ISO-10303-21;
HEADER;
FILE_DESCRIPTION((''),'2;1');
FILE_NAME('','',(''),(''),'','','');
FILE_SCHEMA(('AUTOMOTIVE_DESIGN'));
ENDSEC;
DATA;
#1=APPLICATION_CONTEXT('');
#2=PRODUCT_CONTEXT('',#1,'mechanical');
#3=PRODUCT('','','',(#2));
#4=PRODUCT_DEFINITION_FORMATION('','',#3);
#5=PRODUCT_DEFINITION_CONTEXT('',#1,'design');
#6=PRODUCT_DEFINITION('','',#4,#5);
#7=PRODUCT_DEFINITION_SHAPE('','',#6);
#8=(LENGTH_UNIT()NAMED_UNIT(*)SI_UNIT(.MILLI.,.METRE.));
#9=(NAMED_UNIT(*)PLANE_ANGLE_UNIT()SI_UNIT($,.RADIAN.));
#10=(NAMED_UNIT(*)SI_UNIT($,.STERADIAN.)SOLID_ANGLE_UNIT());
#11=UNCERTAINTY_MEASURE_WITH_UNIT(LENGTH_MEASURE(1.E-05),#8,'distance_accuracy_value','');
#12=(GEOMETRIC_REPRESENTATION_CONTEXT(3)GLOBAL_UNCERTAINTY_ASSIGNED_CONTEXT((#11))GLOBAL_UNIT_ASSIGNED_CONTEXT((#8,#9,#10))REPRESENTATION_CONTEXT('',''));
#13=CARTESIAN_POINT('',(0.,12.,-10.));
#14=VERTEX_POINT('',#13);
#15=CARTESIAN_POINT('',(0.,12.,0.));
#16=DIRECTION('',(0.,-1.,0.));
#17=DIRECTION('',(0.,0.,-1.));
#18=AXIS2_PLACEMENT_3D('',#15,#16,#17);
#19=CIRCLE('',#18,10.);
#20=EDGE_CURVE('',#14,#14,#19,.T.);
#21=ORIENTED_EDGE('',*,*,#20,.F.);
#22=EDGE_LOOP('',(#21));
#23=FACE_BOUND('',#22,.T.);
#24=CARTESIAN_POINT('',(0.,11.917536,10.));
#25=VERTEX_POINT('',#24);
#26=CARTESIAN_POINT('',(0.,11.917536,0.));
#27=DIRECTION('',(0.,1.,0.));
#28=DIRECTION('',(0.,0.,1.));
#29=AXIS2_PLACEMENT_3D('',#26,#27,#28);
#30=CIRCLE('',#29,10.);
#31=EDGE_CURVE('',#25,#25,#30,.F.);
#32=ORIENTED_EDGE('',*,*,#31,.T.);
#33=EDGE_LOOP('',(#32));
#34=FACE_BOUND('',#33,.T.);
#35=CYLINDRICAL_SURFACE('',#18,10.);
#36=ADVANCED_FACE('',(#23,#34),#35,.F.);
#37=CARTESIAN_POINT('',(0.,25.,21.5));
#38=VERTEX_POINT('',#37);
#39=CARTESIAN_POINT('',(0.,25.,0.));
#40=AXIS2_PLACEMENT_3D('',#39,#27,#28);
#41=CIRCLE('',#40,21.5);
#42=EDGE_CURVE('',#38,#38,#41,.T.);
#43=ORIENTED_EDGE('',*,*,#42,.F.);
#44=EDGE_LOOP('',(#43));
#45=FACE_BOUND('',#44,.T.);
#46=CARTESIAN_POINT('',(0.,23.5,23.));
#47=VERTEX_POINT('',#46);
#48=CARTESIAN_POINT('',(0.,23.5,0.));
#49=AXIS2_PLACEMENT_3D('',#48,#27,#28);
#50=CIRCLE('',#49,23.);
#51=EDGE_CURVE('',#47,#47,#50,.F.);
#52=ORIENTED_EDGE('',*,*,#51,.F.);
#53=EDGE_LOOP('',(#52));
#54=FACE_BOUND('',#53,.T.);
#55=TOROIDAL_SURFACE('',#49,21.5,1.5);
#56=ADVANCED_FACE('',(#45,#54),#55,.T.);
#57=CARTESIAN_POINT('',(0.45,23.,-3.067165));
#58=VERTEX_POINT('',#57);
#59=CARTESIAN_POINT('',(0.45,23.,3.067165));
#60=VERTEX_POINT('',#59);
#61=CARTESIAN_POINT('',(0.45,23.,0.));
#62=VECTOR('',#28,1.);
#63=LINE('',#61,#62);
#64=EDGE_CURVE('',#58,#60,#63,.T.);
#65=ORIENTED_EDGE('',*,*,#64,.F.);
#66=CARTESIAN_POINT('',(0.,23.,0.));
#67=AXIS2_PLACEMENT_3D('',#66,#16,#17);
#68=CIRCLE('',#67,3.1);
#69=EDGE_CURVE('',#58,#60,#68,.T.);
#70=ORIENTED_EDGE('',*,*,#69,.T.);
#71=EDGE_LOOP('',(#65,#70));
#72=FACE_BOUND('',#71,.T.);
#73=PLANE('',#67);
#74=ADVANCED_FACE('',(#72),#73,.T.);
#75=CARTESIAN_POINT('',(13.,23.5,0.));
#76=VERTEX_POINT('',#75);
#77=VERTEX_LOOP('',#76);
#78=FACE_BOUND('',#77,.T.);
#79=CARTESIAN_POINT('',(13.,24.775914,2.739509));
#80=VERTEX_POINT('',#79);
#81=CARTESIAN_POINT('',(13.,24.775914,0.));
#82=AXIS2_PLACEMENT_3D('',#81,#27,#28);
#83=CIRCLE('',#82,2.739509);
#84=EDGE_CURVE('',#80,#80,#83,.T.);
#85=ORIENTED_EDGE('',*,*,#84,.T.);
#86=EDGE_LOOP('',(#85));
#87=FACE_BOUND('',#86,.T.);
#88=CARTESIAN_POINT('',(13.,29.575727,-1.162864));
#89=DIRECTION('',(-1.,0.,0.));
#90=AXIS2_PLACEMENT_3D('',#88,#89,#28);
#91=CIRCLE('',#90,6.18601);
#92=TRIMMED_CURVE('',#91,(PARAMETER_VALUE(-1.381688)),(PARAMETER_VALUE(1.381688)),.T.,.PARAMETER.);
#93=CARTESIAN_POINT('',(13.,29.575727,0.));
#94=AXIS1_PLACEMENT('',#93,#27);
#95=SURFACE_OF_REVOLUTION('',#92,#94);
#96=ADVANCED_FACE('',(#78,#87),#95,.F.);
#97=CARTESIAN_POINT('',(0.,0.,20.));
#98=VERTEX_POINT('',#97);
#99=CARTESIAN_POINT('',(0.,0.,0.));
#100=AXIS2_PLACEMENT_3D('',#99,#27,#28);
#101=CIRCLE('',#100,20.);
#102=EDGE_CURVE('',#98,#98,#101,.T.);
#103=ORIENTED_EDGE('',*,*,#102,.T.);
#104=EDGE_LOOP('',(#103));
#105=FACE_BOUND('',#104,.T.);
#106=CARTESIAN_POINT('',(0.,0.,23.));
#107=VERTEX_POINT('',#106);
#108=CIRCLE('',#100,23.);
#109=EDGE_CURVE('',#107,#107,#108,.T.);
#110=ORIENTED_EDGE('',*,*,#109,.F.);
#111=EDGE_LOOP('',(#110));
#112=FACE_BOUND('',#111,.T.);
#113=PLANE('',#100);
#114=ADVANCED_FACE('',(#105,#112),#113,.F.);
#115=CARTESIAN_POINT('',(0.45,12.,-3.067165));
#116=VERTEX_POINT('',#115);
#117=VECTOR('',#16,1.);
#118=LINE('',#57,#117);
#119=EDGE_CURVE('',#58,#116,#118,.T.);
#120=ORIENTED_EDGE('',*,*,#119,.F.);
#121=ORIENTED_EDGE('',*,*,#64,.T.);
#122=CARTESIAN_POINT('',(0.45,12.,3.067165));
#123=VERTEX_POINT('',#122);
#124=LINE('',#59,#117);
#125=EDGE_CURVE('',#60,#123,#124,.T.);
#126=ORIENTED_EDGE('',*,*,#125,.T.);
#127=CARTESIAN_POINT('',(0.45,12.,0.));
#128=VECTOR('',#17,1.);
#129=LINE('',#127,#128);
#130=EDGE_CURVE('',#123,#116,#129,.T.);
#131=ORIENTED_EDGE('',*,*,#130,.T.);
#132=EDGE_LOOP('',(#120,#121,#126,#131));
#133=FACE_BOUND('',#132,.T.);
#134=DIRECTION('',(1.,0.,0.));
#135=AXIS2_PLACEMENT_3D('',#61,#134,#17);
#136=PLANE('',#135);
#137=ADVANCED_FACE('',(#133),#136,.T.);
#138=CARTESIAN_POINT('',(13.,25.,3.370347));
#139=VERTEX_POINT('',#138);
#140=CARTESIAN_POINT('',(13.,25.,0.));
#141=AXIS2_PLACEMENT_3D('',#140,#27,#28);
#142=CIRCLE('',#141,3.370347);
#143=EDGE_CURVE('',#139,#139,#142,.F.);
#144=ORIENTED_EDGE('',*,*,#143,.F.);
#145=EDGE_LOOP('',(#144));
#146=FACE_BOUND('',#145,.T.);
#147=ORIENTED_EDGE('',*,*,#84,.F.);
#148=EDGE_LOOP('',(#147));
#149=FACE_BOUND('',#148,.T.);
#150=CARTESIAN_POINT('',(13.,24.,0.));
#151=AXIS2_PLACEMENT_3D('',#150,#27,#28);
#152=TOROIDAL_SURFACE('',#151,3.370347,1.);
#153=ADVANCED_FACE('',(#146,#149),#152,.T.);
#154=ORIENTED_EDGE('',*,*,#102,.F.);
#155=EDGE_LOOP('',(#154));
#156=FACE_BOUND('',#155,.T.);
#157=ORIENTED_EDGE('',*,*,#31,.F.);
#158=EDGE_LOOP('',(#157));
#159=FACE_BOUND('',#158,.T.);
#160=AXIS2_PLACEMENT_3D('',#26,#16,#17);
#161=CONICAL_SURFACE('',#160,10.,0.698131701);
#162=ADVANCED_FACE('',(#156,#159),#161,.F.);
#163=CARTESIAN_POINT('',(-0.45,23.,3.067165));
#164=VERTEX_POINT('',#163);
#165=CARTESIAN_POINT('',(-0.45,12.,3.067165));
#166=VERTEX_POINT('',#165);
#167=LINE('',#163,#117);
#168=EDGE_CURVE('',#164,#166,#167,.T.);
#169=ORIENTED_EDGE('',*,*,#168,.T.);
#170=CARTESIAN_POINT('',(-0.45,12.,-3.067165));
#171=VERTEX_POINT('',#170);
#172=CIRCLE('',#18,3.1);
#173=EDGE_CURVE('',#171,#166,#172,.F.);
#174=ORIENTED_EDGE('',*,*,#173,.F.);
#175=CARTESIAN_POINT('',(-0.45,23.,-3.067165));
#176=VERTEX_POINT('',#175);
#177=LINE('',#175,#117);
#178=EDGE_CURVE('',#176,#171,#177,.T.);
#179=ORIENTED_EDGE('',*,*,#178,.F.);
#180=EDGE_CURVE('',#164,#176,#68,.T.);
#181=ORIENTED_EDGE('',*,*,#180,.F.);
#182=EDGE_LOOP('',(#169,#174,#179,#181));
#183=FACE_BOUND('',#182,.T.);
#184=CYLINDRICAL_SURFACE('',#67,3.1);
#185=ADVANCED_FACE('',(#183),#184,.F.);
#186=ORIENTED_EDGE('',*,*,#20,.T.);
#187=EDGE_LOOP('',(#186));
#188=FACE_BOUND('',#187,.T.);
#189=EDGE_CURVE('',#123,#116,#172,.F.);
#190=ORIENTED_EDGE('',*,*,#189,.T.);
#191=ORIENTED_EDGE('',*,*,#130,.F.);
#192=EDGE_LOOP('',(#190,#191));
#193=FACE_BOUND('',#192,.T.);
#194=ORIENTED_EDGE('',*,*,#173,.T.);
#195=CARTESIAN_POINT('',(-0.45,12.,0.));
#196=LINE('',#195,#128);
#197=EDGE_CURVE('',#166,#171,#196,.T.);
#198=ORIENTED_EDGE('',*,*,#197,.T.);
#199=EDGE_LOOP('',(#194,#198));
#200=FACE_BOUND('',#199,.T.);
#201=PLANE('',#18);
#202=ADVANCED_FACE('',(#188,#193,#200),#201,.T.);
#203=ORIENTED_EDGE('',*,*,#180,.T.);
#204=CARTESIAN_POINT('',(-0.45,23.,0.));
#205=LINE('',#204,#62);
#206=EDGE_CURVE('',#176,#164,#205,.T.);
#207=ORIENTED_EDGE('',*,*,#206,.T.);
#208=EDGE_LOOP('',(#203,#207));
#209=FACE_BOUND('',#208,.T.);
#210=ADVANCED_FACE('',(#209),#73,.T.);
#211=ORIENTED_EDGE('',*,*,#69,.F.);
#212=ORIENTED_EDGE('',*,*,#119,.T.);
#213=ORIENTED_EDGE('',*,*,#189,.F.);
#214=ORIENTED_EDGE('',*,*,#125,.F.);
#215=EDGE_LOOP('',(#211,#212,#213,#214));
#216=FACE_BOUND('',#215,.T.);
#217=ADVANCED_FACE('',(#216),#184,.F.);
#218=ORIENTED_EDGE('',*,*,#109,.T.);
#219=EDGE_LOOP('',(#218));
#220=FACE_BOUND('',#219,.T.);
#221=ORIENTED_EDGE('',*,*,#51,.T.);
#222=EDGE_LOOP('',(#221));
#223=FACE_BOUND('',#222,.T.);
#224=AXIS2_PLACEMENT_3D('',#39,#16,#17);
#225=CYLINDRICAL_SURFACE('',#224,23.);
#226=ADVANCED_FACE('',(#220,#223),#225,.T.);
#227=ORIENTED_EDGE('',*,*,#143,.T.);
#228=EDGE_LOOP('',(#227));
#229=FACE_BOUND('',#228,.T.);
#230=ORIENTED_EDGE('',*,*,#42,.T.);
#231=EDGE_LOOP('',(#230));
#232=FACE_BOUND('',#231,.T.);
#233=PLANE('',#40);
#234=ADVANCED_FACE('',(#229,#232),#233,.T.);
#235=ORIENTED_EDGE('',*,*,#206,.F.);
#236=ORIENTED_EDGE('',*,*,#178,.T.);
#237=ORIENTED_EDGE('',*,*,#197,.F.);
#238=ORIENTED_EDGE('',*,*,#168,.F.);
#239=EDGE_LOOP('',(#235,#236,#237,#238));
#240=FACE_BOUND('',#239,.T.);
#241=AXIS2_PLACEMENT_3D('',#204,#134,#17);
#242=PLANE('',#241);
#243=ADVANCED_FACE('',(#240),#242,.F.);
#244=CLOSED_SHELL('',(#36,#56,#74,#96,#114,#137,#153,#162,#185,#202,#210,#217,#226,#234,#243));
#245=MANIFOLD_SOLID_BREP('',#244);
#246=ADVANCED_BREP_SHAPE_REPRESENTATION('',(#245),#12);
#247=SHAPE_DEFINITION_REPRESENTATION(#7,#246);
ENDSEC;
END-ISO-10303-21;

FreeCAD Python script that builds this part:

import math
import FreeCAD as App
import Part
import Sketcher
from FreeCAD import Vector


def edges_at(feature, points):
    """Names of the edges that pass closest to the given points."""
    edges = feature.Shape.Edges
    near = lambda p: min(range(len(edges)), key=lambda i: edges[i].distToShape(Part.Vertex(*p))[0])
    return sorted({f"Edge{near(p) + 1}" for p in points})

doc = App.newDocument("Part")
body = doc.addObject("PartDesign::Body", "Body")

sketch1 = body.newObject("Sketcher::SketchObject", "Sketch")
sketch1.AttachmentSupport = (doc.getObject("XZ_Plane"), [""])
sketch1.MapMode = "FlatFace"
sketch1.addGeometry(Part.Circle(Vector(0, 0, 0), Vector(0, 0, 1), 23), False)
sketch1.addConstraint([
    Sketcher.Constraint("Coincident", 0, 3, -1, 1),
    Sketcher.Constraint("Diameter", 0, 46.0),
])
pad1 = body.newObject("PartDesign::Pad", "Pad")
pad1.Profile = sketch1
pad1.Length = 25
pad1.Reversed = True

sketch2 = body.newObject("Sketcher::SketchObject", "Sketch001")
sketch2.AttachmentSupport = (doc.getObject("XZ_Plane"), [""])
sketch2.MapMode = "FlatFace"
sketch2.addGeometry([
    Part.LineSegment(Vector(0.5, 3.1, 0), Vector(0.5, -3.1, 0)),
    Part.ArcOfCircle(Part.Circle(Vector(0, 0, 0), Vector(0, 0, 1), 3.1), math.radians(-82), math.radians(82)),
    Part.ArcOfCircle(Part.Circle(Vector(0, 0, 0), Vector(0, 0, 1), 3.1), math.radians(-180), math.radians(-98)),
    Part.LineSegment(Vector(-0.5, -3.1, 0), Vector(-0.5, 3.1, 0)),
    Part.ArcOfCircle(Part.Circle(Vector(0, 0, 0), Vector(0, 0, 1), 3.1), math.radians(98), math.radians(180)),
], False)
sketch2.addConstraint([
    Sketcher.Constraint("Coincident", 0, 1, 1, 2),
    Sketcher.Constraint("Coincident", 1, 1, 0, 2),
    Sketcher.Constraint("Coincident", 2, 2, 3, 1),
    Sketcher.Constraint("Coincident", 3, 2, 4, 1),
    Sketcher.Constraint("Tangent", 4, 2, 2, 1),
    Sketcher.Constraint("Vertical", 0),
    Sketcher.Constraint("Vertical", 3),
    Sketcher.Constraint("Coincident", 1, 3, -1, 1),
    Sketcher.Constraint("Coincident", 2, 3, -1, 1),
    Sketcher.Constraint("Equal", 1, 2),
    Sketcher.Constraint("Equal", 2, 4),
    Sketcher.Constraint("PointOnObject", 4, 2, -1),
    Sketcher.Constraint("Horizontal", 1, 1, 2, 2),
    Sketcher.Constraint("Radius", 1, 3.1),
    Sketcher.Constraint("DistanceX", 2, 2, 1, 1, 0.9),
])
pocket1 = body.newObject("PartDesign::Pocket", "Pocket")
pocket1.Profile = sketch2
pocket1.Length = 23

sketch3 = body.newObject("Sketcher::SketchObject", "Sketch002")
sketch3.AttachmentSupport = (doc.getObject("XZ_Plane"), [""])
sketch3.MapMode = "FlatFace"
sketch3.addGeometry(Part.Circle(Vector(0, 0, 0), Vector(0, 0, 1), 10), False)
sketch3.addConstraint([
    Sketcher.Constraint("Coincident", 0, 3, -1, 1),
    Sketcher.Constraint("Diameter", 0, 20.0),
])
pocket2 = body.newObject("PartDesign::Pocket", "Pocket001")
pocket2.Profile = sketch3
pocket2.Length = 12
doc.recompute()

chamfer = body.newObject("PartDesign::Chamfer", "Chamfer")
chamfer.Base = (pocket2, edges_at(pocket2, [(0, 0, 10)]))
chamfer.ChamferType = "Two distances"
chamfer.Size = 10
chamfer.Size2 = 11.917536
doc.recompute()

fillet = body.newObject("PartDesign::Fillet", "Fillet")
fillet.Base = (chamfer, edges_at(chamfer, [(0, 25, -23)]))
fillet.Radius = 1.5

sketch4 = body.newObject("Sketcher::SketchObject", "Sketch003")
sketch4.AttachmentSupport = (doc.getObject("XY_Plane"), [""])
sketch4.MapMode = "FlatFace"
sketch4.addGeometry([
    Part.LineSegment(Vector(13, 25, 0), Vector(13, 23.5, 0)),
    Part.ArcOfCircle(Part.Circle(Vector(11.8, 29.6, 0), Vector(0, 0, 1), 6.2), math.radians(-79), math.radians(-48)),
    Part.LineSegment(Vector(16, 25, 0), Vector(13, 25, 0)),
], False)
sketch4.addGeometry(Part.LineSegment(Vector(13, 29.6, 0), Vector(13, 23.5, 0)), True)
sketch4.addConstraint([
    Sketcher.Constraint("Coincident", 0, 2, 1, 1),
    Sketcher.Constraint("Coincident", 1, 2, 2, 1),
    Sketcher.Constraint("Coincident", 2, 2, 0, 1),
    Sketcher.Constraint("Vertical", 0),
    Sketcher.Constraint("Horizontal", 2),
    Sketcher.Constraint("Vertical", 3),
    Sketcher.Constraint("Coincident", 3, 2, 0, 2),
    Sketcher.Constraint("Horizontal", 1, 3, 3, 1),
    Sketcher.Constraint("DistanceX", 2, 2, 2, 1, 3.0),
    Sketcher.Constraint("DistanceY", 0, 2, 0, 1, 1.5),
    Sketcher.Constraint("DistanceX", -1, 1, 0, 2, 13.0),
    Sketcher.Constraint("DistanceY", -1, 1, 1, 2, 25.0),
    Sketcher.Constraint("Radius", 1, 6.18601),
])
groove = body.newObject("PartDesign::Groove", "Groove")
groove.Profile = sketch4
groove.ReferenceAxis = (sketch4, ["Axis0"])
groove.Angle = 360
doc.recompute()

fillet2 = body.newObject("PartDesign::Fillet", "Fillet001")
fillet2.Base = (groove, edges_at(groove, [(10, 25, 0)]))
fillet2.Radius = 1

doc.recompute()
